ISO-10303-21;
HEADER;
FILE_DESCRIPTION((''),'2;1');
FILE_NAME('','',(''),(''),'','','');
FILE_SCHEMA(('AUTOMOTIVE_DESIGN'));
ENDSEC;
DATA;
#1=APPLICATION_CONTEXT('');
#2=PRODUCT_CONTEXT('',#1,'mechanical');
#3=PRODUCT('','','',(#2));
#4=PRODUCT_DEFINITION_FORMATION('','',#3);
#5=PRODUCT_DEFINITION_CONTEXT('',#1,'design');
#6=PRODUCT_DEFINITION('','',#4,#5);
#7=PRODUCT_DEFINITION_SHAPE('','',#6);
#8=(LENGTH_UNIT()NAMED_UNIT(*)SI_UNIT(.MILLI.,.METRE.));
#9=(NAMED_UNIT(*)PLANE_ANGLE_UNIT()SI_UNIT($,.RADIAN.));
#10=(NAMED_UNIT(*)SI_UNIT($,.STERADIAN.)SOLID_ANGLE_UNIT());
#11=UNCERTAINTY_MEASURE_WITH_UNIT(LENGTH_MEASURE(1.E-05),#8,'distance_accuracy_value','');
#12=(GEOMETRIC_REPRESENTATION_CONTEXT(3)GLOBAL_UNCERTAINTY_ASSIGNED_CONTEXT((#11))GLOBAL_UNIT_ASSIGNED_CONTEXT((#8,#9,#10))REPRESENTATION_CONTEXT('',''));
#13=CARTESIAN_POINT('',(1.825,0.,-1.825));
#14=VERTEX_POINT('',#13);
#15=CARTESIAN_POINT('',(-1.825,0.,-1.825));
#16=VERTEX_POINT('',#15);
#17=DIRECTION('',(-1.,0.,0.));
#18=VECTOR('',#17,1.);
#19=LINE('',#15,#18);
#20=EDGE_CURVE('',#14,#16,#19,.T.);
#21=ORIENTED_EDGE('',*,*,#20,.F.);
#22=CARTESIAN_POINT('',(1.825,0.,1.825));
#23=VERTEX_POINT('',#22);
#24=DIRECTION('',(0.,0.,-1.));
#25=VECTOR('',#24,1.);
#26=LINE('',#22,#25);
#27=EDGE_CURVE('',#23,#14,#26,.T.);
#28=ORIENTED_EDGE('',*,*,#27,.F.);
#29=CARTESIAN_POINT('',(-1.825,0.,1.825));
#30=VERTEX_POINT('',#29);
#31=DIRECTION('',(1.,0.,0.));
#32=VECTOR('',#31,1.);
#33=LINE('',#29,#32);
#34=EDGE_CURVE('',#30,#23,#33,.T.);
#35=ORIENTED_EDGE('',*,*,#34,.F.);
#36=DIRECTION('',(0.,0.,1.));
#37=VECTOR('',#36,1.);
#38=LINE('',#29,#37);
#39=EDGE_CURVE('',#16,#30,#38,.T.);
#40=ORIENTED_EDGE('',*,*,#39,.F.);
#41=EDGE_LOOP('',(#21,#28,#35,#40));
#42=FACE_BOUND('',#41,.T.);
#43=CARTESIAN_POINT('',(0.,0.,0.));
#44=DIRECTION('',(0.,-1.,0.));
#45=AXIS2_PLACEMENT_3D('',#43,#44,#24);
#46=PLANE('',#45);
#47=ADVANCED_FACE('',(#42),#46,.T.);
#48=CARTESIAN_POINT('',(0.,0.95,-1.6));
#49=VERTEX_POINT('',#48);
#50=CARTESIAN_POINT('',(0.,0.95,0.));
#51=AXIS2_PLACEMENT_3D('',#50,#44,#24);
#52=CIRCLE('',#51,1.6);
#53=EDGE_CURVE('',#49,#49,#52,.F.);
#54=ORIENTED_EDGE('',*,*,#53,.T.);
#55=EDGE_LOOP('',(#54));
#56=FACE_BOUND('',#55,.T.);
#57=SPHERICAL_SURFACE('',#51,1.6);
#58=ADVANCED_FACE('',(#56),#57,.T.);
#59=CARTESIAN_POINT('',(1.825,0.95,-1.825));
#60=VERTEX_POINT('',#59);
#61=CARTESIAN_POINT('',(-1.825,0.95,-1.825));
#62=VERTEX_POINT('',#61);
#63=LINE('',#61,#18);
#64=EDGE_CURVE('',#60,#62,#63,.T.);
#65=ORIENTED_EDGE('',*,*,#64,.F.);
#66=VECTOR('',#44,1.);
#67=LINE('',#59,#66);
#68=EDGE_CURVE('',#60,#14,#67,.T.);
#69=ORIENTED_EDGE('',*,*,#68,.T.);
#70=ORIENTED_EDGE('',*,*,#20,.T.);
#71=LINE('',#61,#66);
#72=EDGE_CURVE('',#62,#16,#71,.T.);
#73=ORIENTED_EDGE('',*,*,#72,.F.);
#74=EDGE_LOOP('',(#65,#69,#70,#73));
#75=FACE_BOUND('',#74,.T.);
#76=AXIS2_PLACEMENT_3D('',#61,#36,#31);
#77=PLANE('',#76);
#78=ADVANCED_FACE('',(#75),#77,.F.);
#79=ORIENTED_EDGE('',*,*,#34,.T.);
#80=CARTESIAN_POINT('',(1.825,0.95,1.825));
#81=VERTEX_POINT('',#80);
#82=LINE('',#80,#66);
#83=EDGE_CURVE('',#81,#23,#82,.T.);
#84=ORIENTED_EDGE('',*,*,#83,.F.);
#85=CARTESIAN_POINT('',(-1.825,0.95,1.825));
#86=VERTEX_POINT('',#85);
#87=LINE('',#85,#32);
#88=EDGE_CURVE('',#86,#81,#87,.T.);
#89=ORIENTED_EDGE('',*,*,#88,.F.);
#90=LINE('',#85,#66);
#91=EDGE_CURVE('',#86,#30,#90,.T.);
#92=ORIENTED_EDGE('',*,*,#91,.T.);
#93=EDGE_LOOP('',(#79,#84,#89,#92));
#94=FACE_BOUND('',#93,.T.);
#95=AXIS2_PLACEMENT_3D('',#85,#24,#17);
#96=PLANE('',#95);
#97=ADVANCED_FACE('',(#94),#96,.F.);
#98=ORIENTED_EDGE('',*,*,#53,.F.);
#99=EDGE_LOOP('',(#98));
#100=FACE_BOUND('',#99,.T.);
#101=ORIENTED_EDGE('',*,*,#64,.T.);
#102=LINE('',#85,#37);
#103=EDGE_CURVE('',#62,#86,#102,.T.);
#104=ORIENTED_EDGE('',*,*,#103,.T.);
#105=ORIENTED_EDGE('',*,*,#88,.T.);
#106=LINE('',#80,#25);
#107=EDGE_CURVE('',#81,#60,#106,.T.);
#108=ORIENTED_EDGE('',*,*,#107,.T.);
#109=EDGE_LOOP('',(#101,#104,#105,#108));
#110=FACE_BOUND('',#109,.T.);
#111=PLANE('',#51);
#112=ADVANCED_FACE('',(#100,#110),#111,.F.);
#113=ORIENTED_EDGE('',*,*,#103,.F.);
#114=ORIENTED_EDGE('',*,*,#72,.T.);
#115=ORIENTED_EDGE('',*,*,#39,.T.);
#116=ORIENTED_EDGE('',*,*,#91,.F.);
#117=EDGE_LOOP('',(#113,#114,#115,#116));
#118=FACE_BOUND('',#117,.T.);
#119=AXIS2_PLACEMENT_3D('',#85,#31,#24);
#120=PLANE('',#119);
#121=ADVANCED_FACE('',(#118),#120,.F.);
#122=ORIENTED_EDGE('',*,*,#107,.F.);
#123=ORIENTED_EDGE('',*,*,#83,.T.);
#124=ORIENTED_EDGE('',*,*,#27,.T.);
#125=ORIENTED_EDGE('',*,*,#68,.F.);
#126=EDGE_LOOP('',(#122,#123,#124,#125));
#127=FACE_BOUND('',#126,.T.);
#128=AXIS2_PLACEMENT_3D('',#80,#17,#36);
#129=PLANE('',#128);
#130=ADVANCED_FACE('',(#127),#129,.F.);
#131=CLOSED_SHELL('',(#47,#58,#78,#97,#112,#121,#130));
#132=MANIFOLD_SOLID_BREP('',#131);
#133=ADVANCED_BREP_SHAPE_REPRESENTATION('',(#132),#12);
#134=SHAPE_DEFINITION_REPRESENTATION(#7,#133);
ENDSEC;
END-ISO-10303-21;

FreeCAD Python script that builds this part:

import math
import FreeCAD as App
import Part
import Sketcher


def add_polygon(sketch, points):
    """Adds a closed chain of lines whose ends are joined by coincident constraints."""
    first, n = sketch.GeometryCount, len(points)
    for a, b in zip(points, points[1:] + points[:1]):
        sketch.addGeometry(Part.LineSegment(App.Vector(*a, 0), App.Vector(*b, 0)), False)
    for i in range(n):
        sketch.addConstraint(Sketcher.Constraint("Coincident", first + i, 2, first + (i + 1) % n, 1))

doc = App.newDocument("Part")
body = doc.addObject("PartDesign::Body", "Body")

# Sketch on XZ plane
sketch1 = body.newObject("Sketcher::SketchObject", "Sketch")
sketch1.AttachmentSupport = (doc.getObject("XZ_Plane"), [""])
sketch1.MapMode = "FlatFace"
add_polygon(sketch1, [(-1.8, -1.8), (-1.8, 1.8), (1.8, 1.8), (1.8, -1.8)])  # lines 0-3
sketch1.addConstraint(Sketcher.Constraint("Vertical", 0))
sketch1.addConstraint(Sketcher.Constraint("Horizontal", 1))
sketch1.addConstraint(Sketcher.Constraint("Vertical", 2))
sketch1.addConstraint(Sketcher.Constraint("Horizontal", 3))
sketch1.addConstraint(Sketcher.Constraint("Symmetric", 0, 2, 2, 2, -1, 1))
sketch1.addConstraint(Sketcher.Constraint("Equal", 3, 0))
sketch1.addConstraint(Sketcher.Constraint("DistanceX", 1, 1, 1, 2, 3.65))
pad1 = body.newObject("PartDesign::Pad", "Pad")
pad1.Profile = sketch1
pad1.Length = 0.95
pad1.Reversed = True

# Sketch on XZ plane
sketch2 = body.newObject("Sketcher::SketchObject", "Sketch001")
sketch2.AttachmentSupport = (doc.getObject("XZ_Plane"), [""])
sketch2.MapMode = "FlatFace"
sketch2.AttachmentOffset = App.Placement(App.Vector(0, 0, -0.95), App.Rotation())
sketch2.addGeometry(Part.LineSegment(App.Vector(0, -1.6, 0), App.Vector(0, 1.6, 0)), False)
sketch2.addGeometry(Part.ArcOfCircle(Part.Circle(App.Vector(0, 0, 0), App.Vector(0, 0, 1), 1.6), math.radians(-90), math.radians(90)), False)
sketch2.addConstraint(Sketcher.Constraint("Coincident", 0, 1, 1, 1))
sketch2.addConstraint(Sketcher.Constraint("Coincident", 1, 2, 0, 2))
sketch2.addConstraint(Sketcher.Constraint("Vertical", 0))
sketch2.addConstraint(Sketcher.Constraint("Coincident", 1, 3, -1, 1))
sketch2.addConstraint(Sketcher.Constraint("PointOnObject", 0, 1, -2))
sketch2.addConstraint(Sketcher.Constraint("Radius", 1, 1.6))
revolution = body.newObject("PartDesign::Revolution", "Revolution")
revolution.Profile = sketch2
revolution.ReferenceAxis = (sketch2, ["V_Axis"])
revolution.Angle = 180

doc.recompute()
